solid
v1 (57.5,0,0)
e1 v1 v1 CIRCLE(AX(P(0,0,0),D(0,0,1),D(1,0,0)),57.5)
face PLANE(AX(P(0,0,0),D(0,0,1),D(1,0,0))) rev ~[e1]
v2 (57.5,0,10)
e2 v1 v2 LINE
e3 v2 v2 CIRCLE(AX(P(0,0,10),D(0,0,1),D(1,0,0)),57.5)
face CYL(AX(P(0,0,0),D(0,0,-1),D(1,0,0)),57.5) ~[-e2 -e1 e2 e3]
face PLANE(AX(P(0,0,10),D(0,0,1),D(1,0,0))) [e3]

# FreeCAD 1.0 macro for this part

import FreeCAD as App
import Part
import Sketcher
from FreeCAD import Vector

doc = App.newDocument("Part")
params = doc.addObject("Spreadsheet::Sheet", "Params")
for row, (alias, value) in enumerate([
    ("sketch1_diameter", "115 mm"),
    ("pad1_length", "10 mm"),
], start=1):
    params.set(f"A{row}", alias)
    params.set(f"B{row}", "=" + value)
    params.setAlias(f"B{row}", alias)

body = doc.addObject("PartDesign::Body", "Body")

sketch1 = doc.addObject("Sketcher::SketchObject", "Sketch")
body.addObject(sketch1)
sketch1.AttachmentSupport = (doc.XY_Plane, [""])
sketch1.MapMode = "FlatFace"
sketch1.addGeometry(Part.Circle(Vector(0, 0, 0), Vector(0, 0, 1), 58), False)
sketch1.addConstraint([
    Sketcher.Constraint("Coincident", 0, 3, -1, 1),
    Sketcher.Constraint("Diameter", 0, 115.0),
])
sketch1.setExpression("Constraints[1]", "Params.sketch1_diameter")
pad1 = doc.addObject("PartDesign::Pad", "Pad")
body.addObject(pad1)
pad1.Profile = sketch1
pad1.setExpression("Length", "Params.pad1_length")

doc.recompute()
